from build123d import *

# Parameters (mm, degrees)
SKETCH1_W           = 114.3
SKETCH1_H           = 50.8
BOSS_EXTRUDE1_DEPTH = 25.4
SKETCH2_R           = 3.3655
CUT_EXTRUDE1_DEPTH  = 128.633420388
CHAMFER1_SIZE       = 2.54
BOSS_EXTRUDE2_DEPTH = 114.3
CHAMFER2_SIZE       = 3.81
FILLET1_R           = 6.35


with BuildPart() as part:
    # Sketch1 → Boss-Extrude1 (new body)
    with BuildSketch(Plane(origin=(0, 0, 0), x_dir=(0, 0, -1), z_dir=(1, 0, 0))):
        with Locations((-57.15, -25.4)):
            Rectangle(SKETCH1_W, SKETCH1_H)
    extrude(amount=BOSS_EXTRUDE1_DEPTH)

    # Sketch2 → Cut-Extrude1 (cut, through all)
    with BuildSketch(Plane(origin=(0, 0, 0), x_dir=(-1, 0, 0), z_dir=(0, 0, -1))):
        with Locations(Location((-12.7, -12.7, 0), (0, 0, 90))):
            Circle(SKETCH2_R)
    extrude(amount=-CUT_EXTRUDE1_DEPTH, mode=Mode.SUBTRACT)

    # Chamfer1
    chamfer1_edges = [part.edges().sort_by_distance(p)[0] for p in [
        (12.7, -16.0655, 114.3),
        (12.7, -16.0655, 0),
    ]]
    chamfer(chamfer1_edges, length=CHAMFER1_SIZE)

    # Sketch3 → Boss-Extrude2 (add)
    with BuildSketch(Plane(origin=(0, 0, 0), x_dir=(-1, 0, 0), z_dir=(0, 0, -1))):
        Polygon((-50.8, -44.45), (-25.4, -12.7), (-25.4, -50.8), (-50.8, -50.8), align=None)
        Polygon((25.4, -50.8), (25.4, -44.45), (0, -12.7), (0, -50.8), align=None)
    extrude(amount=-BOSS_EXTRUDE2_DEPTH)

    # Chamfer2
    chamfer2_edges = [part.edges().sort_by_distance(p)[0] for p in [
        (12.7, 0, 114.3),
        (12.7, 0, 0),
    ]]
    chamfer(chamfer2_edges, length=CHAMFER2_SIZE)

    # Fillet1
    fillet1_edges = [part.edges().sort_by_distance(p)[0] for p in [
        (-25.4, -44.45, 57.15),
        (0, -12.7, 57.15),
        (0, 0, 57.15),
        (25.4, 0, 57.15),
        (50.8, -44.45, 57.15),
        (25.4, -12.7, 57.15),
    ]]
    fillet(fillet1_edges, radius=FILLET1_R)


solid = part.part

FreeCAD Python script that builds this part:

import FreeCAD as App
import Part
import Sketcher
Q = App.Units.Quantity


def edges_at(feature, points):
    """Names of the edges that pass closest to the given points."""
    edges = feature.Shape.Edges
    near = lambda p: min(range(len(edges)), key=lambda i: edges[i].distToShape(Part.Vertex(*p))[0])
    return sorted({f"Edge{near(p) + 1}" for p in points})


def add_polygon(sketch, points):
    """Adds a closed chain of lines whose ends are joined by coincident constraints."""
    first, n = sketch.GeometryCount, len(points)
    for a, b in zip(points, points[1:] + points[:1]):
        sketch.addGeometry(Part.LineSegment(App.Vector(*a, 0), App.Vector(*b, 0)), False)
    for i in range(n):
        sketch.addConstraint(Sketcher.Constraint("Coincident", first + i, 2, first + (i + 1) % n, 1))

doc = App.newDocument("Part")
params = doc.addObject("Spreadsheet::Sheet", "Params")
for row, (alias, value) in enumerate([
    ("sketch1_width", "2 in"),
    ("sketch1_height", "4.5 in"),
    ("pad1_length", "1 in"),
    ("sketch2_diameter", "0.265 in"),
    ("chamfer_size", "0.1 in"),
    ("sketch3_width", "1 in"),
    ("sketch3_height", "1.5 in"),
    ("sketch3_height2", "0.25 in"),
    ("pad2_length", "4.5 in"),
    ("chamfer2_size", "0.15 in"),
    ("fillet_radius", "0.25 in"),
], start=1):
    params.set(f"A{row}", alias)
    params.set(f"B{row}", "=" + value)
    params.setAlias(f"B{row}", alias)

body = doc.addObject("PartDesign::Body", "Body")

# Sketch on YZ plane
sketch1 = body.newObject("Sketcher::SketchObject", "Sketch")
sketch1.AttachmentSupport = (doc.getObject("YZ_Plane"), [""])
sketch1.MapMode = "FlatFace"
add_polygon(sketch1, [(0, 114), (-51, 114), (-51, 0), (0, 0)])  # lines 0-3
sketch1.addConstraint(Sketcher.Constraint("Horizontal", 0))
sketch1.addConstraint(Sketcher.Constraint("Vertical", 1))
sketch1.addConstraint(Sketcher.Constraint("Horizontal", 2))
sketch1.addConstraint(Sketcher.Constraint("Vertical", 3))
sketch1.addConstraint(Sketcher.Constraint("Coincident", 2, 2, -1, 1))
sketch1.addConstraint(Sketcher.Constraint("DistanceX", 0, 2, 0, 1, Q("2 in")))
sketch1.addConstraint(Sketcher.Constraint("DistanceY", 1, 2, 1, 1, Q("4.5 in")))
sketch1.setExpression("Constraints[9]", "Params.sketch1_width")
sketch1.setExpression("Constraints[10]", "Params.sketch1_height")
pad1 = body.newObject("PartDesign::Pad", "Pad")
pad1.Profile = sketch1
pad1.setExpression("Length", "Params.pad1_length")

# Sketch on XY plane
sketch2 = body.newObject("Sketcher::SketchObject", "Sketch001")
sketch2.AttachmentSupport = (doc.getObject("XY_Plane"), [""])
sketch2.MapMode = "FlatFace"
sketch2.addGeometry(Part.Circle(App.Vector(12.7, -12.7, 0), App.Vector(0, 0, 1), 3.4), False)
sketch2.addConstraint(Sketcher.Constraint("Diameter", 0, Q("0.265 in")))
sketch2.addConstraint(Sketcher.Constraint("DistanceX", -1, 1, 0, 3, Q("0.5 in")))
sketch2.addConstraint(Sketcher.Constraint("DistanceY", 0, 3, -1, 1, Q("0.5 in")))
sketch2.setExpression("Constraints[0]", "Params.sketch2_diameter")
pocket1 = body.newObject("PartDesign::Pocket", "Pocket")
pocket1.Profile = sketch2
pocket1.Type = "ThroughAll"
pocket1.Reversed = True
doc.recompute()

chamfer = body.newObject("PartDesign::Chamfer", "Chamfer")
chamfer.Base = (pocket1, edges_at(pocket1, [(12.7, -16.066, 114.3), (12.7, -16.066, 0)]))
chamfer.setExpression("Size", "Params.chamfer_size")

# Sketch on XY plane
sketch3 = body.newObject("Sketcher::SketchObject", "Sketch002")
sketch3.AttachmentSupport = (doc.getObject("XY_Plane"), [""])
sketch3.MapMode = "FlatFace"
add_polygon(sketch3, [(25, -13), (51, -44), (51, -51), (25, -51)])  # lines 0-3
add_polygon(sketch3, [(-25, -51), (-25, -44), (0, -13), (0, -51)])  # lines 4-7
sketch3.addConstraint(Sketcher.Constraint("Vertical", 1))
sketch3.addConstraint(Sketcher.Constraint("Horizontal", 2))
sketch3.addConstraint(Sketcher.Constraint("Vertical", 3))
sketch3.addConstraint(Sketcher.Constraint("Vertical", 4))
sketch3.addConstraint(Sketcher.Constraint("Vertical", 6))
sketch3.addConstraint(Sketcher.Constraint("Horizontal", 7))
sketch3.addConstraint(Sketcher.Constraint("Symmetric", 2, 2, 7, 2, -2))
sketch3.addConstraint(Sketcher.Constraint("PointOnObject", 5, 2, -2))
sketch3.addConstraint(Sketcher.Constraint("Horizontal", 0, 2, 4, 2))
sketch3.addConstraint(Sketcher.Constraint("Horizontal", 3, 2, 5, 2))
sketch3.addConstraint(Sketcher.Constraint("Equal", 2, 7))
sketch3.addConstraint(Sketcher.Constraint("DistanceX", 2, 2, 2, 1, Q("1 in")))
sketch3.addConstraint(Sketcher.Constraint("DistanceY", 3, 1, 3, 2, Q("1.5 in")))
sketch3.addConstraint(Sketcher.Constraint("DistanceY", 1, 2, -1, 1, Q("2 in")))
sketch3.addConstraint(Sketcher.Constraint("DistanceY", 1, 2, 1, 1, Q("0.25 in")))
sketch3.setExpression("Constraints[19]", "Params.sketch3_width")
sketch3.setExpression("Constraints[20]", "Params.sketch3_height")
sketch3.setExpression("Constraints[22]", "Params.sketch3_height2")
pad2 = body.newObject("PartDesign::Pad", "Pad001")
pad2.Profile = sketch3
pad2.setExpression("Length", "Params.pad2_length")
doc.recompute()

chamfer2 = body.newObject("PartDesign::Chamfer", "Chamfer001")
chamfer2.Base = (pad2, edges_at(pad2, [(12.7, 0, 114.3), (12.7, 0, 0)]))
chamfer2.setExpression("Size", "Params.chamfer2_size")
doc.recompute()

fillet = body.newObject("PartDesign::Fillet", "Fillet")
fillet.Base = (chamfer2, edges_at(chamfer2, [
    (-25.4, -44.45, 57.15),
    (0, -12.7, 57.15),
    (0, 0, 57.15),
    (25.4, 0, 57.15),
    (50.8, -44.45, 57.15),
    (25.4, -12.7, 57.15),
]))
fillet.setExpression("Radius", "Params.fillet_radius")

doc.recompute()
